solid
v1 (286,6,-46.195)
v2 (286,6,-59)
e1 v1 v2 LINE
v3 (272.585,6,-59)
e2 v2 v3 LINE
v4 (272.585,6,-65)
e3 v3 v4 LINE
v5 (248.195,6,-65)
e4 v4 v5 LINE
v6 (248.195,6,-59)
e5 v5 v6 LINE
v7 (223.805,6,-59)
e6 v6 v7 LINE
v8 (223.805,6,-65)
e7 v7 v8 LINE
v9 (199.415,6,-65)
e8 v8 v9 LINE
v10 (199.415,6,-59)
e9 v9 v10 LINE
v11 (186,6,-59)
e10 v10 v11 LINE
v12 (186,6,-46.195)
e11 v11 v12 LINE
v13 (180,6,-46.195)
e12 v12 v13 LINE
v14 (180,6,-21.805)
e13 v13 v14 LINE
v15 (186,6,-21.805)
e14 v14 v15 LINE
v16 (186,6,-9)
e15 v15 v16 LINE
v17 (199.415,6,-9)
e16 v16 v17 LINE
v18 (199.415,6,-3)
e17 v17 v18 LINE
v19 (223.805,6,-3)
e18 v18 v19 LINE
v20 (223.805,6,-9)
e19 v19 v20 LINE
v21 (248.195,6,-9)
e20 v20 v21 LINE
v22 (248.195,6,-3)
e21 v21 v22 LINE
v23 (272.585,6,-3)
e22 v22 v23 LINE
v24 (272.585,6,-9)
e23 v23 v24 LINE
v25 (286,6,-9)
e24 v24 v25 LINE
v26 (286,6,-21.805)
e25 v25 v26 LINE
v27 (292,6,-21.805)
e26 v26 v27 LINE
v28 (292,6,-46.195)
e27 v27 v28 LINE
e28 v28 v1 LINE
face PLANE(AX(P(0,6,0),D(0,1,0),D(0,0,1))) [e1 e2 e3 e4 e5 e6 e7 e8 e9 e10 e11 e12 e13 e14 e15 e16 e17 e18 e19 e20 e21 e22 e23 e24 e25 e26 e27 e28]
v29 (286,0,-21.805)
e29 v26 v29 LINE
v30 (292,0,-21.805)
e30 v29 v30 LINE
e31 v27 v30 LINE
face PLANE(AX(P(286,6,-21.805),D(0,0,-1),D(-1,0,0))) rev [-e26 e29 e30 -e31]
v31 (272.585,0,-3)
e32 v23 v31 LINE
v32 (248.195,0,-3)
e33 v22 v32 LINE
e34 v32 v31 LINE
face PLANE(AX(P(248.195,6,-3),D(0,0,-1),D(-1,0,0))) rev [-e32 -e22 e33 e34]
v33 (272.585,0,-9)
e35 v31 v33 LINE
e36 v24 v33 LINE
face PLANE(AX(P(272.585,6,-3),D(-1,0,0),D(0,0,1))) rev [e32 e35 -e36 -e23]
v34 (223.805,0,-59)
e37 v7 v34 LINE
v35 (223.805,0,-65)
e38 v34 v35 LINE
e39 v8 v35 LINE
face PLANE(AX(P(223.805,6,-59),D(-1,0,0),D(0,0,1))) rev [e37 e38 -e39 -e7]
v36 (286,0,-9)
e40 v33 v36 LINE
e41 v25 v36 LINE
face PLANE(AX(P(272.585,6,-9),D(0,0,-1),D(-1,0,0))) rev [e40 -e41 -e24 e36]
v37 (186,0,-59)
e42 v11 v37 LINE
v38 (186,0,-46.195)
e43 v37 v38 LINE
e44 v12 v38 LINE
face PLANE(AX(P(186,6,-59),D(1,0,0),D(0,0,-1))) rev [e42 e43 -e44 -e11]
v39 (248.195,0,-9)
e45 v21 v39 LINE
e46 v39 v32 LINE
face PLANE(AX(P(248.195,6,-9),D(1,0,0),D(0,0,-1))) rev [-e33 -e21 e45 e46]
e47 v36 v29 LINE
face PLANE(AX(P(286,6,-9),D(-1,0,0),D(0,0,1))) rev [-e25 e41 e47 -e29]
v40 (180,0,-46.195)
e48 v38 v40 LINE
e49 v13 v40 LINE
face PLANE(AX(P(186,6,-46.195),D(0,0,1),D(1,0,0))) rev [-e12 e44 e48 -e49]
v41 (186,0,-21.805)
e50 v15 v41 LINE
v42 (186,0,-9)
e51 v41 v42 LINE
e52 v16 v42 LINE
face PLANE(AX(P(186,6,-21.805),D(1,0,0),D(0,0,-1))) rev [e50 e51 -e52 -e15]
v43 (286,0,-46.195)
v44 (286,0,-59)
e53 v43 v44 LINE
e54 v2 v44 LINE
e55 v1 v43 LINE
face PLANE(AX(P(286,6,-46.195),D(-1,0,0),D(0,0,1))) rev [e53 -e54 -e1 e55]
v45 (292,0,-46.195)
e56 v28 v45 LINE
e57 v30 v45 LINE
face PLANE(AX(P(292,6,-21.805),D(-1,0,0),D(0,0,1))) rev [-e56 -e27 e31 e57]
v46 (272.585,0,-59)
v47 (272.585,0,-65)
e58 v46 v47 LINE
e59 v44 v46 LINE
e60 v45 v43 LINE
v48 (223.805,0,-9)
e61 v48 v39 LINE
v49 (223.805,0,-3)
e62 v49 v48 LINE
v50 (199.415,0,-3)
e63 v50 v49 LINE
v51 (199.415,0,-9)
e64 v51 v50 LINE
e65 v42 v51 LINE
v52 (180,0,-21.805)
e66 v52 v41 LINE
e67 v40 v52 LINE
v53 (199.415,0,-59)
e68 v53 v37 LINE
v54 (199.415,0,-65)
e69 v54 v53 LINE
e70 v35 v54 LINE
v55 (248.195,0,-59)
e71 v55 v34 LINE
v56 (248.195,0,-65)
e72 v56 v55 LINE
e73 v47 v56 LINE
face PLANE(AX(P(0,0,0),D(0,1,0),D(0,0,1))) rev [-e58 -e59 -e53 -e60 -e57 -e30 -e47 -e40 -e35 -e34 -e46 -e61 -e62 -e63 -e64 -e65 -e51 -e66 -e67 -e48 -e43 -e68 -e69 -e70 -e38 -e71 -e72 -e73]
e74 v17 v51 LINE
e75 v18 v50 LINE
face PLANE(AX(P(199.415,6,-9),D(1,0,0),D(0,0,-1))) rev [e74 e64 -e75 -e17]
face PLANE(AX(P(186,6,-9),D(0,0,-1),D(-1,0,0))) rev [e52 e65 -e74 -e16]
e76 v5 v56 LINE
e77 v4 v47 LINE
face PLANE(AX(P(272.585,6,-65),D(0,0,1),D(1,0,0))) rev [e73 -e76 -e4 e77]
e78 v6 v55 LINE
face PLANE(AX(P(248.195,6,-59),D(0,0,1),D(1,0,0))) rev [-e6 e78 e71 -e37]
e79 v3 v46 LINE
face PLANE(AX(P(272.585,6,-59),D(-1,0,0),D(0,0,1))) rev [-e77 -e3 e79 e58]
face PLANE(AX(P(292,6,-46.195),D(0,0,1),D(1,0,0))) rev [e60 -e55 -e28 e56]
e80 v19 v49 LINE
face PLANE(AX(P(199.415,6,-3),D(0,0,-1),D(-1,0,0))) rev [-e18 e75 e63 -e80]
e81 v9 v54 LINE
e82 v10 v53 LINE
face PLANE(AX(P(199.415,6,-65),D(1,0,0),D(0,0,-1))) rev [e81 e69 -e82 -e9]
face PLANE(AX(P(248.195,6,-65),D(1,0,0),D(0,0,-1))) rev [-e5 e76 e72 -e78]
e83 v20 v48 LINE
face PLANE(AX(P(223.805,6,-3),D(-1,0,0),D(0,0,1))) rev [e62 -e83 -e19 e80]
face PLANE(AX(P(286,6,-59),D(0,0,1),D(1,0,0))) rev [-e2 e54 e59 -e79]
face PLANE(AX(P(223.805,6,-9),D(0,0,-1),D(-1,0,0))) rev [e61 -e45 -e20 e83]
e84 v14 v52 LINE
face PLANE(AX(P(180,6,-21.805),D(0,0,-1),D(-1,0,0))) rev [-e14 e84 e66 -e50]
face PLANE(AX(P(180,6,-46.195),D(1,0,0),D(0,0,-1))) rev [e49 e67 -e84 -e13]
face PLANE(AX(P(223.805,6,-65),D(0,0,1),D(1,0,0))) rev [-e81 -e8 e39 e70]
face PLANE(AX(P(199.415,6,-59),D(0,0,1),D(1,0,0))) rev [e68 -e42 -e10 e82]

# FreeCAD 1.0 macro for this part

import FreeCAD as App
import Part
import Sketcher
Q = App.Units.Quantity

doc = App.newDocument("Part")
body = doc.addObject("PartDesign::Body", "Body")

# Sketch on XZ plane
sketch1 = body.newObject("Sketcher::SketchObject", "Sketch")
sketch1.AttachmentSupport = (doc.getObject("XZ_Plane"), [""])
sketch1.MapMode = "FlatFace"
sketch1.addGeometry(Part.LineSegment(App.Vector(186, -59, 0), App.Vector(186, -46, 0)), False)
sketch1.addGeometry(Part.LineSegment(App.Vector(186, -46, 0), App.Vector(180, -46, 0)), False)
sketch1.addGeometry(Part.LineSegment(App.Vector(180, -46, 0), App.Vector(180, -22, 0)), False)
sketch1.addGeometry(Part.LineSegment(App.Vector(180, -22, 0), App.Vector(186, -22, 0)), False)
sketch1.addGeometry(Part.LineSegment(App.Vector(186, -22, 0), App.Vector(186, -9, 0)), False)
sketch1.addGeometry(Part.LineSegment(App.Vector(186, -9, 0), App.Vector(199, -9, 0)), False)
sketch1.addGeometry(Part.LineSegment(App.Vector(199, -9, 0), App.Vector(199, -3, 0)), False)
sketch1.addGeometry(Part.LineSegment(App.Vector(199, -3, 0), App.Vector(224, -3, 0)), False)
sketch1.addGeometry(Part.LineSegment(App.Vector(224, -3, 0), App.Vector(224, -9, 0)), False)
sketch1.addGeometry(Part.LineSegment(App.Vector(224, -9, 0), App.Vector(248, -9, 0)), False)
sketch1.addGeometry(Part.LineSegment(App.Vector(248, -9, 0), App.Vector(248, -3, 0)), False)
sketch1.addGeometry(Part.LineSegment(App.Vector(248, -3, 0), App.Vector(273, -3, 0)), False)
sketch1.addGeometry(Part.LineSegment(App.Vector(273, -3, 0), App.Vector(273, -9, 0)), False)
sketch1.addGeometry(Part.LineSegment(App.Vector(273, -9, 0), App.Vector(286, -9, 0)), False)
sketch1.addGeometry(Part.LineSegment(App.Vector(286, -9, 0), App.Vector(286, -22, 0)), False)
sketch1.addGeometry(Part.LineSegment(App.Vector(286, -22, 0), App.Vector(292, -22, 0)), False)
sketch1.addGeometry(Part.LineSegment(App.Vector(292, -22, 0), App.Vector(292, -46, 0)), False)
sketch1.addGeometry(Part.LineSegment(App.Vector(292, -46, 0), App.Vector(286, -46, 0)), False)
sketch1.addGeometry(Part.LineSegment(App.Vector(286, -46, 0), App.Vector(286, -59, 0)), False)
sketch1.addGeometry(Part.LineSegment(App.Vector(286, -59, 0), App.Vector(273, -59, 0)), False)
sketch1.addGeometry(Part.LineSegment(App.Vector(273, -59, 0), App.Vector(273, -65, 0)), False)
sketch1.addGeometry(Part.LineSegment(App.Vector(273, -65, 0), App.Vector(248, -65, 0)), False)
sketch1.addGeometry(Part.LineSegment(App.Vector(248, -65, 0), App.Vector(248, -59, 0)), False)
sketch1.addGeometry(Part.LineSegment(App.Vector(248, -59, 0), App.Vector(224, -59, 0)), False)
sketch1.addGeometry(Part.LineSegment(App.Vector(224, -59, 0), App.Vector(224, -65, 0)), False)
sketch1.addGeometry(Part.LineSegment(App.Vector(224, -65, 0), App.Vector(199, -65, 0)), False)
sketch1.addGeometry(Part.LineSegment(App.Vector(199, -65, 0), App.Vector(199, -59, 0)), False)
sketch1.addGeometry(Part.LineSegment(App.Vector(199, -59, 0), App.Vector(186, -59, 0)), False)
sketch1.addConstraint(Sketcher.Constraint("Coincident", 0, 2, 1, 1))
sketch1.addConstraint(Sketcher.Constraint("Coincident", 1, 2, 2, 1))
sketch1.addConstraint(Sketcher.Constraint("Coincident", 2, 2, 3, 1))
sketch1.addConstraint(Sketcher.Constraint("Coincident", 3, 2, 4, 1))
sketch1.addConstraint(Sketcher.Constraint("Coincident", 4, 2, 5, 1))
sketch1.addConstraint(Sketcher.Constraint("Coincident", 5, 2, 6, 1))
sketch1.addConstraint(Sketcher.Constraint("Coincident", 6, 2, 7, 1))
sketch1.addConstraint(Sketcher.Constraint("Coincident", 7, 2, 8, 1))
sketch1.addConstraint(Sketcher.Constraint("Coincident", 8, 2, 9, 1))
sketch1.addConstraint(Sketcher.Constraint("Coincident", 9, 2, 10, 1))
sketch1.addConstraint(Sketcher.Constraint("Coincident", 10, 2, 11, 1))
sketch1.addConstraint(Sketcher.Constraint("Coincident", 11, 2, 12, 1))
sketch1.addConstraint(Sketcher.Constraint("Coincident", 12, 2, 13, 1))
sketch1.addConstraint(Sketcher.Constraint("Coincident", 13, 2, 14, 1))
sketch1.addConstraint(Sketcher.Constraint("Coincident", 14, 2, 15, 1))
sketch1.addConstraint(Sketcher.Constraint("Coincident", 15, 2, 16, 1))
sketch1.addConstraint(Sketcher.Constraint("Coincident", 16, 2, 17, 1))
sketch1.addConstraint(Sketcher.Constraint("Coincident", 17, 2, 18, 1))
sketch1.addConstraint(Sketcher.Constraint("Coincident", 18, 2, 19, 1))
sketch1.addConstraint(Sketcher.Constraint("Coincident", 19, 2, 20, 1))
sketch1.addConstraint(Sketcher.Constraint("Coincident", 20, 2, 21, 1))
sketch1.addConstraint(Sketcher.Constraint("Coincident", 21, 2, 22, 1))
sketch1.addConstraint(Sketcher.Constraint("Coincident", 22, 2, 23, 1))
sketch1.addConstraint(Sketcher.Constraint("Coincident", 23, 2, 24, 1))
sketch1.addConstraint(Sketcher.Constraint("Coincident", 24, 2, 25, 1))
sketch1.addConstraint(Sketcher.Constraint("Coincident", 25, 2, 26, 1))
sketch1.addConstraint(Sketcher.Constraint("Coincident", 26, 2, 27, 1))
sketch1.addConstraint(Sketcher.Constraint("Coincident", 27, 2, 0, 1))
sketch1.addConstraint(Sketcher.Constraint("Vertical", 0))
sketch1.addConstraint(Sketcher.Constraint("Horizontal", 1))
sketch1.addConstraint(Sketcher.Constraint("Vertical", 2))
sketch1.addConstraint(Sketcher.Constraint("Horizontal", 3))
sketch1.addConstraint(Sketcher.Constraint("Vertical", 4))
sketch1.addConstraint(Sketcher.Constraint("Horizontal", 5))
sketch1.addConstraint(Sketcher.Constraint("Vertical", 6))
sketch1.addConstraint(Sketcher.Constraint("Horizontal", 7))
sketch1.addConstraint(Sketcher.Constraint("Vertical", 8))
sketch1.addConstraint(Sketcher.Constraint("Horizontal", 9))
sketch1.addConstraint(Sketcher.Constraint("Vertical", 10))
sketch1.addConstraint(Sketcher.Constraint("Horizontal", 11))
sketch1.addConstraint(Sketcher.Constraint("Vertical", 12))
sketch1.addConstraint(Sketcher.Constraint("Horizontal", 13))
sketch1.addConstraint(Sketcher.Constraint("Vertical", 14))
sketch1.addConstraint(Sketcher.Constraint("Horizontal", 15))
sketch1.addConstraint(Sketcher.Constraint("Vertical", 16))
sketch1.addConstraint(Sketcher.Constraint("Horizontal", 17))
sketch1.addConstraint(Sketcher.Constraint("Vertical", 18))
sketch1.addConstraint(Sketcher.Constraint("Horizontal", 19))
sketch1.addConstraint(Sketcher.Constraint("Vertical", 20))
sketch1.addConstraint(Sketcher.Constraint("Horizontal", 21))
sketch1.addConstraint(Sketcher.Constraint("Vertical", 22))
sketch1.addConstraint(Sketcher.Constraint("Horizontal", 23))
sketch1.addConstraint(Sketcher.Constraint("Vertical", 24))
sketch1.addConstraint(Sketcher.Constraint("Horizontal", 25))
sketch1.addConstraint(Sketcher.Constraint("Vertical", 26))
sketch1.addConstraint(Sketcher.Constraint("Horizontal", 27))
sketch1.addConstraint(Sketcher.Constraint("Horizontal", 5, 2, 8, 2))
sketch1.addConstraint(Sketcher.Constraint("Horizontal", 7, 2, 10, 2))
sketch1.addConstraint(Sketcher.Constraint("Horizontal", 9, 2, 12, 2))
sketch1.addConstraint(Sketcher.Constraint("Horizontal", 3, 2, 14, 2))
sketch1.addConstraint(Sketcher.Constraint("Horizontal", 1, 2, 16, 2))
sketch1.addConstraint(Sketcher.Constraint("Horizontal", 19, 2, 22, 2))
sketch1.addConstraint(Sketcher.Constraint("Horizontal", 21, 2, 24, 2))
sketch1.addConstraint(Sketcher.Constraint("Horizontal", 23, 2, 26, 2))
sketch1.addConstraint(Sketcher.Constraint("Vertical", 0, 2, 3, 2))
sketch1.addConstraint(Sketcher.Constraint("Vertical", 14, 2, 17, 2))
sketch1.addConstraint(Sketcher.Constraint("Vertical", 12, 2, 19, 2))
sketch1.addConstraint(Sketcher.Constraint("Vertical", 10, 2, 21, 2))
sketch1.addConstraint(Sketcher.Constraint("Vertical", 8, 2, 23, 2))
sketch1.addConstraint(Sketcher.Constraint("Vertical", 6, 2, 25, 2))
sketch1.addConstraint(Sketcher.Constraint("Equal", 7, 9))
sketch1.addConstraint(Sketcher.Constraint("Equal", 9, 11))
sketch1.addConstraint(Sketcher.Constraint("Equal", 5, 13))
sketch1.addConstraint(Sketcher.Constraint("Equal", 3, 15))
sketch1.addConstraint(Sketcher.Constraint("Equal", 25, 2))
sketch1.addConstraint(Sketcher.Constraint("Equal", 0, 4))
sketch1.addConstraint(Sketcher.Constraint("Equal", 17, 6))
sketch1.addConstraint(Sketcher.Constraint("Equal", 12, 20))
sketch1.addConstraint(Sketcher.Constraint("DistanceX", 1, 2, 1, 1, Q("6 mm")))
sketch1.addConstraint(Sketcher.Constraint("DistanceX", -1, 1, 0, 2, Q("186 mm")))
sketch1.addConstraint(Sketcher.Constraint("DistanceY", 4, 2, -1, 1, Q("9 mm")))
sketch1.addConstraint(Sketcher.Constraint("DistanceX", -1, 1, 13, 2, Q("286 mm")))
sketch1.addConstraint(Sketcher.Constraint("DistanceY", 18, 2, -1, 1, Q("59 mm")))
sketch1.addConstraint(Sketcher.Constraint("DistanceX", 7, 1, 7, 2, Q("24.39 mm")))
pad1 = body.newObject("PartDesign::Pad", "Pad")
pad1.Profile = sketch1
pad1.Length = 6
pad1.Reversed = True

doc.recompute()
